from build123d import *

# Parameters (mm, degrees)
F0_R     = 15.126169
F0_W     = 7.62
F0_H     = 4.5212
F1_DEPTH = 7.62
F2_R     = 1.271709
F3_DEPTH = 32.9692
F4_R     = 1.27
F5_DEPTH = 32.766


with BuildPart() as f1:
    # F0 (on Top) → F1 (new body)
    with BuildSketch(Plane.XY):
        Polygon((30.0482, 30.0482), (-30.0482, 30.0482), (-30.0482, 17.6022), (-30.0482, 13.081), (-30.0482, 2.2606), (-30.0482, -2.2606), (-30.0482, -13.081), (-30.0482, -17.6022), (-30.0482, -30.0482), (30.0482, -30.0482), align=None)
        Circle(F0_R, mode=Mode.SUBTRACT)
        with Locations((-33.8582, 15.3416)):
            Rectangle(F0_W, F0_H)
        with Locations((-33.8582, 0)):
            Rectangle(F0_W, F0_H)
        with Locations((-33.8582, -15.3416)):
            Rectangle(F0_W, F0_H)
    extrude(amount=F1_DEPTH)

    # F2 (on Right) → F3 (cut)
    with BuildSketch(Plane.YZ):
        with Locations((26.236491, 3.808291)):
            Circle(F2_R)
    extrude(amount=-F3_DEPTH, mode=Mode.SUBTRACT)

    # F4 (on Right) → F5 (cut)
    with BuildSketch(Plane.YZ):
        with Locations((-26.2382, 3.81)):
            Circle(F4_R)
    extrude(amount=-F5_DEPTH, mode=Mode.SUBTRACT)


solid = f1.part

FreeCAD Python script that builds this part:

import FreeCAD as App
import Part
import Sketcher
Q = App.Units.Quantity


def add_polygon(sketch, points):
    """Adds a closed chain of lines whose ends are joined by coincident constraints."""
    first, n = sketch.GeometryCount, len(points)
    for a, b in zip(points, points[1:] + points[:1]):
        sketch.addGeometry(Part.LineSegment(App.Vector(*a, 0), App.Vector(*b, 0)), False)
    for i in range(n):
        sketch.addConstraint(Sketcher.Constraint("Coincident", first + i, 2, first + (i + 1) % n, 1))

doc = App.newDocument("Part")
body = doc.addObject("PartDesign::Body", "Body")

sketch1 = doc.addObject("Sketcher::SketchObject", "Sketch")
body.addObject(sketch1)
sketch1.AttachmentSupport = (doc.XY_Plane, [""])
sketch1.MapMode = "FlatFace"
add_polygon(sketch1, [(30, 30), (-30, 30), (-30, 17.6), (-37.7, 17.6), (-37.7, 13.1), (-30, 13.1), (-30, 2.3), (-37.7, 2.3), (-37.7, -2.3), (-30, -2.3), (-30, -13.1), (-37.7, -13.1), (-37.7, -17.6), (-30, -17.6), (-30, -30), (30, -30)])
sketch1.addGeometry(Part.Circle(App.Vector(0, 0, 0), App.Vector(0, 0, 1), 15.1), False)
sketch1.addConstraint([
    Sketcher.Constraint("Horizontal", 0),
    Sketcher.Constraint("Vertical", 1),
    Sketcher.Constraint("Horizontal", 2),
    Sketcher.Constraint("Vertical", 3),
    Sketcher.Constraint("Horizontal", 4),
    Sketcher.Constraint("Vertical", 5),
    Sketcher.Constraint("Horizontal", 6),
    Sketcher.Constraint("Vertical", 7),
    Sketcher.Constraint("Horizontal", 8),
    Sketcher.Constraint("Vertical", 9),
    Sketcher.Constraint("Horizontal", 10),
    Sketcher.Constraint("Vertical", 11),
    Sketcher.Constraint("Horizontal", 12),
    Sketcher.Constraint("Vertical", 13),
    Sketcher.Constraint("Horizontal", 14),
    Sketcher.Constraint("Vertical", 15),
    Sketcher.Constraint("Coincident", 16, 3, -1, 1),
    Sketcher.Constraint("Symmetric", 0, 2, 14, 2, -1, 1),
    Sketcher.Constraint("Symmetric", 5, 2, 8, 2, -1),
    Sketcher.Constraint("Symmetric", 3, 2, 10, 2, -1),
    Sketcher.Constraint("Symmetric", 1, 2, 12, 2, -1),
    Sketcher.Constraint("Vertical", 1, 2, 4, 2),
    Sketcher.Constraint("Vertical", 3, 2, 6, 2),
    Sketcher.Constraint("Equal", 3, 7),
    Sketcher.Constraint("Equal", 14, 15),
    Sketcher.Constraint("DistanceX", 2, 2, 2, 1, Q("0.3 in")),
    Sketcher.Constraint("DistanceY", 1, 2, 1, 1, Q("0.49 in")),
    Sketcher.Constraint("DistanceX", 0, 2, 0, 1, Q("2.366 in")),
    Sketcher.Constraint("DistanceY", 3, 2, 3, 1, Q("0.178 in")),
    Sketcher.Constraint("Diameter", 16, 30.252338),
])
pad1 = doc.addObject("PartDesign::Pad", "Pad")
body.addObject(pad1)
pad1.Profile = sketch1
pad1.Length = Q("0.3 in")

sketch2 = doc.addObject("Sketcher::SketchObject", "Sketch001")
body.addObject(sketch2)
sketch2.AttachmentSupport = (doc.YZ_Plane, [""])
sketch2.MapMode = "FlatFace"
sketch2.addGeometry(Part.Circle(App.Vector(26.2, 3.8, 0), App.Vector(0, 0, 1), 1.3), False)
sketch2.addConstraint([
    Sketcher.Constraint("Diameter", 0, 2.543418),
    Sketcher.Constraint("DistanceX", -1, 1, 0, 3, 26.236491),
    Sketcher.Constraint("DistanceY", -1, 1, 0, 3, 3.808291),
])
pocket1 = doc.addObject("PartDesign::Pocket", "Pocket")
body.addObject(pocket1)
pocket1.Profile = sketch2
pocket1.Length = Q("1.298 in")

sketch3 = doc.addObject("Sketcher::SketchObject", "Sketch002")
body.addObject(sketch3)
sketch3.AttachmentSupport = (doc.YZ_Plane, [""])
sketch3.MapMode = "FlatFace"
sketch3.addGeometry(Part.Circle(App.Vector(-26.2, 3.8, 0), App.Vector(0, 0, 1), 1.3), False)
sketch3.addConstraint([
    Sketcher.Constraint("Diameter", 0, Q("0.1 in")),
    Sketcher.Constraint("DistanceY", -1, 1, 0, 3, Q("0.15 in")),
    Sketcher.Constraint("DistanceX", 0, 3, -1, 1, Q("1.033 in")),
])
pocket2 = doc.addObject("PartDesign::Pocket", "Pocket001")
body.addObject(pocket2)
pocket2.Profile = sketch3
pocket2.Length = Q("1.29 in")

doc.recompute()
